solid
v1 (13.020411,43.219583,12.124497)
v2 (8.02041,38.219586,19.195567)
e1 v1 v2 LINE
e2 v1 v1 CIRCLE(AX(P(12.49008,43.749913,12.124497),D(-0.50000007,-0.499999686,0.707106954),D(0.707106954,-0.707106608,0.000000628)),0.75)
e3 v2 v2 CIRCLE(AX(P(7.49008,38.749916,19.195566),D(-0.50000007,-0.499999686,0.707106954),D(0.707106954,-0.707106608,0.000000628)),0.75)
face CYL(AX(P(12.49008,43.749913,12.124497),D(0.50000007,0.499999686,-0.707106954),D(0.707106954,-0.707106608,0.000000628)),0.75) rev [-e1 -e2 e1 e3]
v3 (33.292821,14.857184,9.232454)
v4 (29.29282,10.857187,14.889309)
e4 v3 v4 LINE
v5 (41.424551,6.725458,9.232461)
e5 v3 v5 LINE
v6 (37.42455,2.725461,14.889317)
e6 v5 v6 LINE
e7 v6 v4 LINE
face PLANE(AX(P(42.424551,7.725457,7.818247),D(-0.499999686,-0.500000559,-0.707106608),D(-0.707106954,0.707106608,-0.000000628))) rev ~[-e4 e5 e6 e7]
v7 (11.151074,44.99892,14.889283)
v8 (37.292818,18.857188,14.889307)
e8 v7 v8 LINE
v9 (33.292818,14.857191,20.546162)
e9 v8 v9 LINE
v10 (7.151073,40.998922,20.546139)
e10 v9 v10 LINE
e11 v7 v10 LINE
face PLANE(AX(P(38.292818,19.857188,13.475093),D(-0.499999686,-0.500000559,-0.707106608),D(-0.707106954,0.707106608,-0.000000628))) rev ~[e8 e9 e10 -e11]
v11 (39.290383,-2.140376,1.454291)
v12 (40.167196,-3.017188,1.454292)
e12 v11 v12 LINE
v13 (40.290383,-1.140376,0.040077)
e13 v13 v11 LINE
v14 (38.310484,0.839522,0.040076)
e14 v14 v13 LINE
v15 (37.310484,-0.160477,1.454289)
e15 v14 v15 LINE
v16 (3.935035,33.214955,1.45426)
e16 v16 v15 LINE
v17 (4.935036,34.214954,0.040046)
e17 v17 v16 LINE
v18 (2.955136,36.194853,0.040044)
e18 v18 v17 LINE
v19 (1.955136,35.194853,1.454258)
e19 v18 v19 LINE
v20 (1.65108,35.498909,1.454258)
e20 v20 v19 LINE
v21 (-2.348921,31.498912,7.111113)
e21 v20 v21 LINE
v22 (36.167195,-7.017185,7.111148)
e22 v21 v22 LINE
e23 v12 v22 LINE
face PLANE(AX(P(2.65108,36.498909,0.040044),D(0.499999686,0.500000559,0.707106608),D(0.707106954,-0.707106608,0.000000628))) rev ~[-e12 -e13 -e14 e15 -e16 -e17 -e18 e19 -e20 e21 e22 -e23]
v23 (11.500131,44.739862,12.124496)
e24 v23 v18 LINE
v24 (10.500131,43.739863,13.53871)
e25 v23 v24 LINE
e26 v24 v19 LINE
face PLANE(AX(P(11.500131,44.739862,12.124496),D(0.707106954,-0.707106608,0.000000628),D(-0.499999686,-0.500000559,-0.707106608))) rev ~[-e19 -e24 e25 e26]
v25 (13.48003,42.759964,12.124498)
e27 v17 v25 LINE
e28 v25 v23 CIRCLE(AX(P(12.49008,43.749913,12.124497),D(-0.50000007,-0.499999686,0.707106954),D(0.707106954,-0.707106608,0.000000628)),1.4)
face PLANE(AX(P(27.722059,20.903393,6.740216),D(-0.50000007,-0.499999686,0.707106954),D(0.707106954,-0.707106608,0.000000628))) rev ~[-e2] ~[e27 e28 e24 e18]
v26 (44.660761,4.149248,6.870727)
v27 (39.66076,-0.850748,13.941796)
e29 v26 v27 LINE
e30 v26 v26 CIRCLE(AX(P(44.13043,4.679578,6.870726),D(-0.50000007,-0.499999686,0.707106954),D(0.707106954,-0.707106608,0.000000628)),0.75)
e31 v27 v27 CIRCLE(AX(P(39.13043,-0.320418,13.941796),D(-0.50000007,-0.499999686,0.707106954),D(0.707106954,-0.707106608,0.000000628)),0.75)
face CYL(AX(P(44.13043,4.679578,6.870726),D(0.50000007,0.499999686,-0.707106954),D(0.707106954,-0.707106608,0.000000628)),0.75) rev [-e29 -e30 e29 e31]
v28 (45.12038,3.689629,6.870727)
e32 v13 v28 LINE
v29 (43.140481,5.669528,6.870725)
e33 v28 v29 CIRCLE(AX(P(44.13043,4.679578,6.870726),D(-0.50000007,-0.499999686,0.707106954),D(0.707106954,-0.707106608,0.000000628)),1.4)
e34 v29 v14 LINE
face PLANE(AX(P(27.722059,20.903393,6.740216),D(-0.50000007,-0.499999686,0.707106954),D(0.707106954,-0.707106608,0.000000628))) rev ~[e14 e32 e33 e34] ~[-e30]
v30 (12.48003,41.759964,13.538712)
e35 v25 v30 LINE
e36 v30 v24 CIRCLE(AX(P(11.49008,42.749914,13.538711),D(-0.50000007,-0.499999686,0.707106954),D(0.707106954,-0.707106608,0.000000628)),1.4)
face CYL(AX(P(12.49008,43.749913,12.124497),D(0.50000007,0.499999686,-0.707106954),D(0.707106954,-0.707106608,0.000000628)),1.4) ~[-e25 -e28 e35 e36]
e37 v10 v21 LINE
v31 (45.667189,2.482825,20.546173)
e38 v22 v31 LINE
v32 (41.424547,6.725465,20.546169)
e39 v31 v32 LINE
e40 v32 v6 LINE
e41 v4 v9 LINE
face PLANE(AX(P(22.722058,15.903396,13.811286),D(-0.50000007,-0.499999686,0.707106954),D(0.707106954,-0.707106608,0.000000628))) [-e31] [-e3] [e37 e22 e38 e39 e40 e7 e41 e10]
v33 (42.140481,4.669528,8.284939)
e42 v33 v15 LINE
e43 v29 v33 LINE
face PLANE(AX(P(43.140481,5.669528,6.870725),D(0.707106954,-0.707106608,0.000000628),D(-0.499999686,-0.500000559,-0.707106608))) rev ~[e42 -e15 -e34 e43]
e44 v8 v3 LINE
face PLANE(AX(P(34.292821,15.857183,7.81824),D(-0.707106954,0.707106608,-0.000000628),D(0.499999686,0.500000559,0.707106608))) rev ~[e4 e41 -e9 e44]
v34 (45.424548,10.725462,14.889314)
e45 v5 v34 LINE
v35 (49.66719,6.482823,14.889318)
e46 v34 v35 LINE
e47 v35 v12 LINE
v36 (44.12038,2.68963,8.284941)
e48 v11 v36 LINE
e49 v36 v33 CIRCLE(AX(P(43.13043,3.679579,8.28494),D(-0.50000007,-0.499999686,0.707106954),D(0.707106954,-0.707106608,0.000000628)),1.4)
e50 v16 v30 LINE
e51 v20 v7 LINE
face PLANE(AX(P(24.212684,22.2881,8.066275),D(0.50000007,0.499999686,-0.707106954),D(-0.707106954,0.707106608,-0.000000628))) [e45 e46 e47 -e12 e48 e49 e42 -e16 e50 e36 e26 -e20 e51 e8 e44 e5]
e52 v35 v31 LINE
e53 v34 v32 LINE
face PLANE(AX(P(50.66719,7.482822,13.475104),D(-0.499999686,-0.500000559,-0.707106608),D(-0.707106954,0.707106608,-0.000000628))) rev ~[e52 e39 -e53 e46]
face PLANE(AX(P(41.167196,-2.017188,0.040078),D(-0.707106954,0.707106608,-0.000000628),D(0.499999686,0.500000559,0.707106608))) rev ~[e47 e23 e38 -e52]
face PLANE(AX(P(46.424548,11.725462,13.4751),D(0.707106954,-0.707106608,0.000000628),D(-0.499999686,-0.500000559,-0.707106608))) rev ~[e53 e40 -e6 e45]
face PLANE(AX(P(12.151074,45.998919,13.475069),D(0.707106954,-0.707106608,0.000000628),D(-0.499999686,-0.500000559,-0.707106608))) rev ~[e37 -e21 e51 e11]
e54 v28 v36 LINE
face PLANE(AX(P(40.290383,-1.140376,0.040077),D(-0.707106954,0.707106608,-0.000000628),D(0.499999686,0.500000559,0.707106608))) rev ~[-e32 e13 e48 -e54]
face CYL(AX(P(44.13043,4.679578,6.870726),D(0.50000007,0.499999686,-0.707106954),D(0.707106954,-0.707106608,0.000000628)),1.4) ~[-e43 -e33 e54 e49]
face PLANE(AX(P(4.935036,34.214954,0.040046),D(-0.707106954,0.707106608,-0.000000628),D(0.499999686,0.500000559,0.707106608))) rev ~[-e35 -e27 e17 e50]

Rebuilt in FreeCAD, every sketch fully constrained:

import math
import FreeCAD as App
import Part
import Sketcher

V = App.Vector

doc = App.newDocument("Part")
body = doc.addObject("PartDesign::Body", "Body")

# Sketch on XY plane
sketch1 = doc.addObject("Sketcher::SketchObject", "Sketch")
body.addObject(sketch1)
sketch1.AttachmentSupport = (doc.XY_Plane, [""])
sketch1.MapMode = "FlatFace"
sketch1.addGeometry([
    Part.LineSegment(V(-26, -9.7, 0), V(28.4, -9.7, 0)),  # 0
    Part.LineSegment(V(28.4, -9.7, 0), V(28.4, 9.3, 0)),  # 1
    Part.LineSegment(V(28.4, 9.3, 0), V(22.4, 9.3, 0)),  # 2
    Part.LineSegment(V(22.4, 9.3, 0), V(22.4, 1.3, 0)),  # 3
    Part.LineSegment(V(22.4, 1.3, 0), V(10.9, 1.3, 0)),  # 4
    Part.LineSegment(V(10.9, 1.3, 0), V(10.9, 9.3, 0)),  # 5
    Part.LineSegment(V(10.9, 9.3, 0), V(-26, 9.3, 0)),  # 6
    Part.LineSegment(V(-26, 9.3, 0), V(-26, -9.7, 0)),  # 7
    Part.Circle(V(25.8, 0, 0), V(0, 0, 1), 0.8),  # 8
    Part.Circle(V(-24.2, 7.4, 0), V(0, 0, 1), 0.8),  # 9
], False)
sketch1.addConstraint([
    Sketcher.Constraint("Coincident", 0, 2, 1, 1),
    Sketcher.Constraint("Coincident", 1, 2, 2, 1),
    Sketcher.Constraint("Coincident", 2, 2, 3, 1),
    Sketcher.Constraint("Coincident", 3, 2, 4, 1),
    Sketcher.Constraint("Coincident", 4, 2, 5, 1),
    Sketcher.Constraint("Coincident", 5, 2, 6, 1),
    Sketcher.Constraint("Coincident", 6, 2, 7, 1),
    Sketcher.Constraint("Coincident", 7, 2, 0, 1),
    Sketcher.Constraint("Horizontal", 0),
    Sketcher.Constraint("Vertical", 1),
    Sketcher.Constraint("Horizontal", 2),
    Sketcher.Constraint("Vertical", 3),
    Sketcher.Constraint("Horizontal", 4),
    Sketcher.Constraint("Vertical", 5),
    Sketcher.Constraint("Horizontal", 6),
    Sketcher.Constraint("Vertical", 7),
    Sketcher.Constraint("Equal", 8, 9),
    Sketcher.Constraint("PointOnObject", 8, 3, -1),
    Sketcher.Constraint("Horizontal", 2, 2, 5, 2),
    Sketcher.Constraint("Diameter", 8, 1.5),
    Sketcher.Constraint("DistanceX", 2, 2, 2, 1, 6.0),
    Sketcher.Constraint("DistanceY", 1, 1, 1, 2, 19.0),
    Sketcher.Constraint("DistanceY", 3, 2, 3, 1, 8.0),
    Sketcher.Constraint("DistanceX", 4, 2, 4, 1, 11.5),
    Sketcher.Constraint("DistanceX", 9, 3, 8, 3, 50.0),
    Sketcher.Constraint("DistanceX", 0, 1, 0, 2, 54.47),
    Sketcher.Constraint("DistanceX", -1, 1, 8, 3, 25.81),
    Sketcher.Constraint("DistanceY", -1, 1, 9, 3, 7.43),
    Sketcher.Constraint("DistanceX", -1, 1, 0, 2, 28.45),
    Sketcher.Constraint("DistanceY", 0, 2, -1, 1, 9.66),
])
pad1 = doc.addObject("PartDesign::Pad", "Pad")
body.addObject(pad1)
pad1.Profile = sketch1
pad1.Length = 10

# Sketch on XY plane
sketch2 = doc.addObject("Sketcher::SketchObject", "Sketch001")
body.addObject(sketch2)
sketch2.AttachmentSupport = (doc.XY_Plane, [""])
sketch2.MapMode = "FlatFace"
sketch2.addGeometry([
    Part.LineSegment(V(-26.02, 9.34, 0), V(-26.02, -9.66, 0)),  # 0
    Part.LineSegment(V(-26.02, -9.66, 0), V(-25.59, -9.66, 0)),  # 1
    Part.LineSegment(V(-25.59, -9.66, 0), V(-25.59, 7.43, 0)),  # 2
    Part.ArcOfCircle(Part.Circle(V(-24.19, 7.43, 0), V(0, 0, 1), 1.4), math.radians(0), math.radians(180)),  # 3
    Part.LineSegment(V(-22.79, 7.43, 0), V(-22.79, -9.66, 0)),  # 4
    Part.LineSegment(V(-22.79, -9.66, 0), V(24.41, -9.66, 0)),  # 5
    Part.LineSegment(V(24.41, -9.66, 0), V(24.41, 0, 0)),  # 6
    Part.ArcOfCircle(Part.Circle(V(25.81, 0, 0), V(0, 0, 1), 1.4), math.radians(0), math.radians(180)),  # 7
    Part.LineSegment(V(27.21, 0, 0), V(27.21, -9.66, 0)),  # 8
    Part.LineSegment(V(27.21, -9.66, 0), V(28.45, -9.66, 0)),  # 9
    Part.LineSegment(V(28.45, -9.66, 0), V(28.45, 9.34, 0)),  # 10
    Part.LineSegment(V(28.45, 9.34, 0), V(-26.02, 9.34, 0)),  # 11
], False)
sketch2.addConstraint([
    Sketcher.Constraint("Coincident", 0, 2, 1, 1),
    Sketcher.Constraint("Coincident", 1, 2, 2, 1),
    Sketcher.Constraint("Tangent", 2, 2, 3, 2),
    Sketcher.Constraint("Tangent", 3, 1, 4, 1),
    Sketcher.Constraint("Coincident", 4, 2, 5, 1),
    Sketcher.Constraint("Coincident", 5, 2, 6, 1),
    Sketcher.Constraint("Tangent", 6, 2, 7, 2),
    Sketcher.Constraint("Tangent", 7, 1, 8, 1),
    Sketcher.Constraint("Coincident", 8, 2, 9, 1),
    Sketcher.Constraint("Coincident", 9, 2, 10, 1),
    Sketcher.Constraint("Coincident", 10, 2, 11, 1),
    Sketcher.Constraint("Coincident", 11, 2, 0, 1),
    Sketcher.Constraint("Vertical", 0),
    Sketcher.Constraint("Horizontal", 1),
    Sketcher.Constraint("Vertical", 2),
    Sketcher.Constraint("Vertical", 4),
    Sketcher.Constraint("Horizontal", 5),
    Sketcher.Constraint("Vertical", 6),
    Sketcher.Constraint("Vertical", 8),
    Sketcher.Constraint("Horizontal", 9),
    Sketcher.Constraint("Vertical", 10),
    Sketcher.Constraint("Horizontal", 11),
    Sketcher.Constraint("Equal", 3, 7),
    Sketcher.Constraint("PointOnObject", 7, 3, -1),
    Sketcher.Constraint("Horizontal", 1, 2, 4, 2),
    Sketcher.Constraint("Horizontal", 5, 2, 8, 2),
    Sketcher.Constraint("Radius", 3, 1.4),
    Sketcher.Constraint("DistanceY", 0, 2, 0, 1, 19.0),
    Sketcher.Constraint("DistanceX", 5, 1, 5, 2, 47.2),
    Sketcher.Constraint("DistanceX", 1, 1, 1, 2, 0.43),
    Sketcher.Constraint("DistanceX", 9, 1, 9, 2, 1.24),
    Sketcher.Constraint("DistanceY", 2, 1, 2, 2, 17.09),
    Sketcher.Constraint("DistanceY", 6, 1, 6, 2, 9.66),
    Sketcher.Constraint("DistanceX", 3, 3, -1, 1, 24.19),
])
pocket1 = doc.addObject("PartDesign::Pocket", "Pocket")
body.addObject(pocket1)
pocket1.Profile = sketch2
pocket1.Length = 5

# Sketch on XY plane
sketch3 = doc.addObject("Sketcher::SketchObject", "Sketch002")
body.addObject(sketch3)
sketch3.AttachmentSupport = (doc.XY_Plane, [""])
sketch3.MapMode = "FlatFace"
sketch3.addGeometry([
    Part.LineSegment(V(-26.02, 9.34, 0), V(-26.02, -9.66, 0)),  # 0
    Part.LineSegment(V(-26.02, -9.66, 0), V(-25.59, -9.66, 0)),  # 1
    Part.LineSegment(V(-25.59, -9.66, 0), V(-25.59, 7.43, 0)),  # 2
    Part.ArcOfCircle(Part.Circle(V(-24.19, 7.43, 0), V(0, 0, 1), 1.4), math.radians(0), math.radians(180)),  # 3
    Part.LineSegment(V(-22.79, 7.43, 0), V(-22.79, -9.66, 0)),  # 4
    Part.LineSegment(V(-22.79, -9.66, 0), V(24.41, -9.66, 0)),  # 5
    Part.LineSegment(V(24.41, -9.66, 0), V(24.41, 0, 0)),  # 6
    Part.ArcOfCircle(Part.Circle(V(25.81, 0, 0), V(0, 0, 1), 1.4), math.radians(0), math.radians(180)),  # 7
    Part.LineSegment(V(27.21, 0, 0), V(27.21, -9.66, 0)),  # 8
    Part.LineSegment(V(27.21, -9.66, 0), V(28.45, -9.66, 0)),  # 9
    Part.LineSegment(V(28.45, -9.66, 0), V(28.45, 9.34, 0)),  # 10
    Part.LineSegment(V(28.45, 9.34, 0), V(-26.02, 9.34, 0)),  # 11
], False)
sketch3.addConstraint([
    Sketcher.Constraint("Coincident", 0, 2, 1, 1),
    Sketcher.Constraint("Coincident", 1, 2, 2, 1),
    Sketcher.Constraint("Tangent", 2, 2, 3, 2),
    Sketcher.Constraint("Tangent", 3, 1, 4, 1),
    Sketcher.Constraint("Coincident", 4, 2, 5, 1),
    Sketcher.Constraint("Coincident", 5, 2, 6, 1),
    Sketcher.Constraint("Tangent", 6, 2, 7, 2),
    Sketcher.Constraint("Tangent", 7, 1, 8, 1),
    Sketcher.Constraint("Coincident", 8, 2, 9, 1),
    Sketcher.Constraint("Coincident", 9, 2, 10, 1),
    Sketcher.Constraint("Coincident", 10, 2, 11, 1),
    Sketcher.Constraint("Coincident", 11, 2, 0, 1),
    Sketcher.Constraint("Vertical", 0),
    Sketcher.Constraint("Horizontal", 1),
    Sketcher.Constraint("Vertical", 2),
    Sketcher.Constraint("Vertical", 4),
    Sketcher.Constraint("Horizontal", 5),
    Sketcher.Constraint("Vertical", 6),
    Sketcher.Constraint("Vertical", 8),
    Sketcher.Constraint("Horizontal", 9),
    Sketcher.Constraint("Vertical", 10),
    Sketcher.Constraint("Horizontal", 11),
    Sketcher.Constraint("Equal", 3, 7),
    Sketcher.Constraint("PointOnObject", 7, 3, -1),
    Sketcher.Constraint("Horizontal", 1, 2, 4, 2),
    Sketcher.Constraint("Horizontal", 5, 2, 8, 2),
    Sketcher.Constraint("Radius", 3, 1.4),
    Sketcher.Constraint("DistanceY", 0, 2, 0, 1, 19.0),
    Sketcher.Constraint("DistanceX", 5, 1, 5, 2, 47.2),
    Sketcher.Constraint("DistanceX", 1, 1, 1, 2, 0.43),
    Sketcher.Constraint("DistanceX", 9, 1, 9, 2, 1.24),
    Sketcher.Constraint("DistanceY", 2, 1, 2, 2, 17.09),
    Sketcher.Constraint("DistanceY", 6, 1, 6, 2, 9.66),
    Sketcher.Constraint("DistanceX", 3, 3, -1, 1, 24.19),
])
pocket2 = doc.addObject("PartDesign::Pocket", "Pocket001")
body.addObject(pocket2)
pocket2.Profile = sketch3
pocket2.Length = 2
pocket2.Reversed = True
body2 = doc.addObject("PartDesign::Body", "Body001")
doc.recompute()

body.Placement = App.Placement(V(0, 0, 0), App.Rotation(V(1, 0, 0), 44.999986))
boolean = doc.addObject("PartDesign::Boolean", "Boolean")
body2.addObject(boolean)
boolean.Type = "Fuse"
boolean.addObjects([body])
body3 = doc.addObject("PartDesign::Body", "Body002")
doc.recompute()

body2.Placement = App.Placement(V(0, 0, 0), App.Rotation(V(0, 1, 0), 359.999964))
boolean2 = doc.addObject("PartDesign::Boolean", "Boolean001")
body3.addObject(boolean2)
boolean2.Type = "Fuse"
boolean2.addObjects([body2])
body4 = doc.addObject("PartDesign::Body", "Body003")
doc.recompute()

body3.Placement = App.Placement(V(25.88, 22.93, 6.87071), App.Rotation(V(0, 0, 1), 315.000014))
boolean3 = doc.addObject("PartDesign::Boolean", "Boolean002")
body4.addObject(boolean3)
boolean3.Type = "Fuse"
boolean3.addObjects([body3])

doc.recompute()
